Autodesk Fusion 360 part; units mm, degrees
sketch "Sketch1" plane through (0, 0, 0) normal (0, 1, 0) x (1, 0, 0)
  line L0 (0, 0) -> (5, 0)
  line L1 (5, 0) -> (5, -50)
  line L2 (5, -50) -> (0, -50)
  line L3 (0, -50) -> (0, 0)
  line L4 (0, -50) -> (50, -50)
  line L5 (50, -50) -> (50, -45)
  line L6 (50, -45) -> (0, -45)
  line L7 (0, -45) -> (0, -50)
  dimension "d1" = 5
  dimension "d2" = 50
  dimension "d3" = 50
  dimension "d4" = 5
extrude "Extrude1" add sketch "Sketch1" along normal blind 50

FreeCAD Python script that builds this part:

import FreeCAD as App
import Part
import Sketcher

V = App.Vector
Q = App.Units.Quantity

doc = App.newDocument("Part")
body = doc.addObject("PartDesign::Body", "Body")

# Sketch on XZ plane
sketch1 = body.newObject("Sketcher::SketchObject", "Sketch")
sketch1.AttachmentSupport = (doc.getObject("XZ_Plane"), [""])
sketch1.MapMode = "FlatFace"
sketch1.addGeometry([
    Part.LineSegment(V(5, 0, 0), V(0, 0, 0)),  # 0
    Part.LineSegment(V(0, 0, 0), V(0, 50, 0)),  # 1
    Part.LineSegment(V(0, 50, 0), V(50, 50, 0)),  # 2
    Part.LineSegment(V(50, 50, 0), V(50, 45, 0)),  # 3
    Part.LineSegment(V(50, 45, 0), V(5, 45, 0)),  # 4
    Part.LineSegment(V(5, 45, 0), V(5, 0, 0)),  # 5
], False)
sketch1.addConstraint([
    Sketcher.Constraint("Coincident", 0, 2, 1, 1),
    Sketcher.Constraint("Coincident", 1, 2, 2, 1),
    Sketcher.Constraint("Coincident", 2, 2, 3, 1),
    Sketcher.Constraint("Coincident", 3, 2, 4, 1),
    Sketcher.Constraint("Coincident", 4, 2, 5, 1),
    Sketcher.Constraint("Coincident", 5, 2, 0, 1),
    Sketcher.Constraint("Horizontal", 0),
    Sketcher.Constraint("Vertical", 1),
    Sketcher.Constraint("Horizontal", 2),
    Sketcher.Constraint("Vertical", 3),
    Sketcher.Constraint("Horizontal", 4),
    Sketcher.Constraint("Vertical", 5),
    Sketcher.Constraint("Coincident", 0, 2, -1, 1),
    Sketcher.Constraint("Equal", 2, 1),
    Sketcher.Constraint("Equal", 0, 3),
    Sketcher.Constraint("DistanceX", 0, 2, 0, 1, Q("5 mm")),
    Sketcher.Constraint("DistanceX", 2, 1, 2, 2, Q("50 mm")),
])
pad1 = body.newObject("PartDesign::Pad", "Pad")
pad1.Profile = sketch1
pad1.Length = 50
pad1.Reversed = True

doc.recompute()
